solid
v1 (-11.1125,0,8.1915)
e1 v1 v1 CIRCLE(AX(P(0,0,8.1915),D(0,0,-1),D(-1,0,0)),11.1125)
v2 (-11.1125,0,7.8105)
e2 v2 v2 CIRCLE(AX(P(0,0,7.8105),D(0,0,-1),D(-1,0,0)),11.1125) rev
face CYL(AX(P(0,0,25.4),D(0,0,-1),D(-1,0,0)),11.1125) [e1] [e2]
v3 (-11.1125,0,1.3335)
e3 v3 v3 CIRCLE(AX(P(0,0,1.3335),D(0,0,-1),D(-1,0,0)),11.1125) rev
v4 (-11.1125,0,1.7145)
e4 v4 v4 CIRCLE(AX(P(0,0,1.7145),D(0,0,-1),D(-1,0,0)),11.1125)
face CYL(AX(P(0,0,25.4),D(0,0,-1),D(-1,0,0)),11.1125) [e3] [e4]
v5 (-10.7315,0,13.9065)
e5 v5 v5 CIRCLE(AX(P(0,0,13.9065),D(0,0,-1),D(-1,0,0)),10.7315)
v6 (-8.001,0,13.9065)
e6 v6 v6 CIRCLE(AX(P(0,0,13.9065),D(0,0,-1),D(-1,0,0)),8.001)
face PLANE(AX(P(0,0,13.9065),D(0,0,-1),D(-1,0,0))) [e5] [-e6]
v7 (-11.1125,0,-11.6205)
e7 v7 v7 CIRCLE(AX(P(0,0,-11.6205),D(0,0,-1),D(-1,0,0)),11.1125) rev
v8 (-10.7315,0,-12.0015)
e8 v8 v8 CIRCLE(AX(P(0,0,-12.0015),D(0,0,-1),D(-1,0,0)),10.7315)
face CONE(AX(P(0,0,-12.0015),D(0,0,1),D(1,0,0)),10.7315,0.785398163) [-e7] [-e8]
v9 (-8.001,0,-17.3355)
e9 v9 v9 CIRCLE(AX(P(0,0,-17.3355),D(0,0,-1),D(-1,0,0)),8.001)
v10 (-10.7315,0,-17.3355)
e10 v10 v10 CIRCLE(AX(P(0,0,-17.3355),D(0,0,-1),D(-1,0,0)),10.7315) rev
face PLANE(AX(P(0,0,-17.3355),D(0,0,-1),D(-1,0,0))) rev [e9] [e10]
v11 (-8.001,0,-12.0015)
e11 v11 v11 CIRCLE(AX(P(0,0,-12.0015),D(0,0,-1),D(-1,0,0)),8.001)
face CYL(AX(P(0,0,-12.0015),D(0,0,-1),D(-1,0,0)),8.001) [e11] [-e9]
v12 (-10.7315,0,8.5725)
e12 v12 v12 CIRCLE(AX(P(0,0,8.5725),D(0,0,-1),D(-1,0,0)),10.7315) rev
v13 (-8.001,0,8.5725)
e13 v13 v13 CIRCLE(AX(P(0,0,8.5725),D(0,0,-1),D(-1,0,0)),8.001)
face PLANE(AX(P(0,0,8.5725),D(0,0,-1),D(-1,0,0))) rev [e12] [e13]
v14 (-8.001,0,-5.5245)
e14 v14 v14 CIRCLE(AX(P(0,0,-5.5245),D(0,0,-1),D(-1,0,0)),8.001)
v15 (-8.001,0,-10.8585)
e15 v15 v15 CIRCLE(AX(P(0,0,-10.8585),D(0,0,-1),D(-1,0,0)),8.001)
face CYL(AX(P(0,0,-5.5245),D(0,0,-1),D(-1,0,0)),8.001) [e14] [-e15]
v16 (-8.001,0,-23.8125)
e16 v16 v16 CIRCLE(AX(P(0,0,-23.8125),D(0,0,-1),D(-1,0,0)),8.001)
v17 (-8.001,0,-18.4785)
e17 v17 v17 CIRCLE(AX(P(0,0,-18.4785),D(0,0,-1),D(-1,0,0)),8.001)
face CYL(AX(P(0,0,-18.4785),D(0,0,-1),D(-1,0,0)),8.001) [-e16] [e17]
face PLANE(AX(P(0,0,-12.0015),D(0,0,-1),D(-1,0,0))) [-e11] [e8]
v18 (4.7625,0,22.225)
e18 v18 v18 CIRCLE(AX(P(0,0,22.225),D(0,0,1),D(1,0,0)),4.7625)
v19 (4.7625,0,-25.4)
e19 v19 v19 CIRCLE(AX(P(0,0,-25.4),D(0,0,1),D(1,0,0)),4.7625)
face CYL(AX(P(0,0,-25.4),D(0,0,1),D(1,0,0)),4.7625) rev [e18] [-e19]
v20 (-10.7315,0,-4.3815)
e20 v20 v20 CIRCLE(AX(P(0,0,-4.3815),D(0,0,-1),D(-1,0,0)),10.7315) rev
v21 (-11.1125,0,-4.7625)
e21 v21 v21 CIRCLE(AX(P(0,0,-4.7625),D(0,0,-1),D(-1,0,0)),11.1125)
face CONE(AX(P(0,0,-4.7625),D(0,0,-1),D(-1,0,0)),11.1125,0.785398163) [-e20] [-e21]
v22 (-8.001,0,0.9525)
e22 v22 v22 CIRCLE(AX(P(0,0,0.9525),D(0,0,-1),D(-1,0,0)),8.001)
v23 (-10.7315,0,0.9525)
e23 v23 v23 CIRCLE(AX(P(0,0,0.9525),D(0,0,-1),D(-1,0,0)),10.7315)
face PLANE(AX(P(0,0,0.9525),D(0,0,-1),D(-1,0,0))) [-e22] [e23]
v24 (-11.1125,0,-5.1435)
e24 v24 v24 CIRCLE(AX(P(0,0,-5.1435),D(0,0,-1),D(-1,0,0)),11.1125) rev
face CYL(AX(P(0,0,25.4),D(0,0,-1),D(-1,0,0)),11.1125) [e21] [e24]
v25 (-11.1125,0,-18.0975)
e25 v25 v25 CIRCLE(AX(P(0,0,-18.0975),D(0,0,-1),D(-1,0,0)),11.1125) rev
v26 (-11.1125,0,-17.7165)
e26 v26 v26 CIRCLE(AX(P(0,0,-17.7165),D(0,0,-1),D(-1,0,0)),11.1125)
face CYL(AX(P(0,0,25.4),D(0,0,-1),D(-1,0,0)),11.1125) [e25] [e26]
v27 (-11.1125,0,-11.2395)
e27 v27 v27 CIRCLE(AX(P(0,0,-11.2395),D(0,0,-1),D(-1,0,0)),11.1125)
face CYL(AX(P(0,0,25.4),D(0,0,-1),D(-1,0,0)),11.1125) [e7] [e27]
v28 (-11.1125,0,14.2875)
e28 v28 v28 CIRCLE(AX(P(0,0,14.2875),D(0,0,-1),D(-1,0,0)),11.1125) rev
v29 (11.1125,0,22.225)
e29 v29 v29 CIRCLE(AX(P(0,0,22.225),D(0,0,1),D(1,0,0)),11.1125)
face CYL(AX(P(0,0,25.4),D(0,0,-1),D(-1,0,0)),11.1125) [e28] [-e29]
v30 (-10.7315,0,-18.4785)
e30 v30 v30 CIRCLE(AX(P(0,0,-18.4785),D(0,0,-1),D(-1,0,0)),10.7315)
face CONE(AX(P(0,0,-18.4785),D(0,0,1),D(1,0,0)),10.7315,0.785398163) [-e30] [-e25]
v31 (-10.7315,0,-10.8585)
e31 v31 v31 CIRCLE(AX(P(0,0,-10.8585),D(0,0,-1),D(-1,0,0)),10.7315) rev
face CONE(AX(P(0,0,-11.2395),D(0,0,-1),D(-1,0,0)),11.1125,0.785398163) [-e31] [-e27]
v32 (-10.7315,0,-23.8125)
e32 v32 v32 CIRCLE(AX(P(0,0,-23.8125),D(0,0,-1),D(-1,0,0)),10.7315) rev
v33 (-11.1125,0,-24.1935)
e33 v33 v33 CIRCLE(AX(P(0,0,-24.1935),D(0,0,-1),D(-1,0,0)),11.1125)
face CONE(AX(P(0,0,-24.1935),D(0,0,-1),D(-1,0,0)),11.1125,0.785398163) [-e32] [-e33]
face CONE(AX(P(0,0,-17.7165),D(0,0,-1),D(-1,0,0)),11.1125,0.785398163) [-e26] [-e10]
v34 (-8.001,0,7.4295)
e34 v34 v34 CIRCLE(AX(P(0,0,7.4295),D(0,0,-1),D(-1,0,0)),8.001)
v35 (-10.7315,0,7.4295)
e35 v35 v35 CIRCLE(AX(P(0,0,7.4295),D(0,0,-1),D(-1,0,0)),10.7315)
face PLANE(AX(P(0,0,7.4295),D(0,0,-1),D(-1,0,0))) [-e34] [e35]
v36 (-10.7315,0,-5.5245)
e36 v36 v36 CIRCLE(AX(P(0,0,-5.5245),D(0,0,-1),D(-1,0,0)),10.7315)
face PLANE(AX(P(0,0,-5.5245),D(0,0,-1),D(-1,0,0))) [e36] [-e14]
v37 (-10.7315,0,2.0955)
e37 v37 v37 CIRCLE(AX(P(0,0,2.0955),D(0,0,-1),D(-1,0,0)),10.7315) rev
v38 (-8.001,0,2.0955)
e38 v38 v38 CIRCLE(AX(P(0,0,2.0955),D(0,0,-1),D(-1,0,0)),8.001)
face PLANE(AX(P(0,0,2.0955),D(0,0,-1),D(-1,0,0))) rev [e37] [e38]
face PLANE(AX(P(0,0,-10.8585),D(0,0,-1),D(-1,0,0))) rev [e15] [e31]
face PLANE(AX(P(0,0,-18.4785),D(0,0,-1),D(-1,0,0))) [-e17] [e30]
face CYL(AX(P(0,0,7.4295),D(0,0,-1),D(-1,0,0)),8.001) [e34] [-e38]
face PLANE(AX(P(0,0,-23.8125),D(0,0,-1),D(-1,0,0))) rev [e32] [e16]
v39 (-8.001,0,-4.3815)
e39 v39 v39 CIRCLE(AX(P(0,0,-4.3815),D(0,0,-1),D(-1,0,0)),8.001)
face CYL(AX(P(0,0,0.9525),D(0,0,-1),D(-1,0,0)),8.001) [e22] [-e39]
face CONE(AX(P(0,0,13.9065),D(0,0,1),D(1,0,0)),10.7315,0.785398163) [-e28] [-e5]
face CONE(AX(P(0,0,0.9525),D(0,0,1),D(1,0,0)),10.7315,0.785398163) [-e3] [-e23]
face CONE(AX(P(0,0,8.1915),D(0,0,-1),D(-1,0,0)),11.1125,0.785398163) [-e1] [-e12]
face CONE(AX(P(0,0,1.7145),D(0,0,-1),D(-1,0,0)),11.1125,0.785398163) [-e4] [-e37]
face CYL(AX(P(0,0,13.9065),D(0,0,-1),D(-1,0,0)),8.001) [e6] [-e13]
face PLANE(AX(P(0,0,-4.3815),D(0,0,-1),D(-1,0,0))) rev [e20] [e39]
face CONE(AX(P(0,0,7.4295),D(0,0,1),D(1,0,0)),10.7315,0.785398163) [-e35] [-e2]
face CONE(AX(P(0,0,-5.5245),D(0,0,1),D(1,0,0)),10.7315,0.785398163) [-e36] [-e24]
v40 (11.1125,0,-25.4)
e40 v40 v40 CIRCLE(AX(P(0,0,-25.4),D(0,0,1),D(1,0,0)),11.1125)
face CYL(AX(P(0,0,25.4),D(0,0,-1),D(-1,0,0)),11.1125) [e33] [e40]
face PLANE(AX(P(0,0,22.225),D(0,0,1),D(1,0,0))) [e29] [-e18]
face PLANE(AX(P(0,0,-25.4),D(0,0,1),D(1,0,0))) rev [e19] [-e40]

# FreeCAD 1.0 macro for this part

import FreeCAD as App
import Part
import Sketcher

V = App.Vector
Q = App.Units.Quantity


def edges_at(feature, points):
    """Names of the edges that pass closest to the given points."""
    edges = feature.Shape.Edges
    near = lambda p: min(range(len(edges)), key=lambda i: edges[i].distToShape(Part.Vertex(*p))[0])
    return sorted({f"Edge{near(p) + 1}" for p in points})

doc = App.newDocument("Part")
body = doc.addObject("PartDesign::Body", "Body")

sketch1 = body.newObject("Sketcher::SketchObject", "Sketch")
sketch1.AttachmentSupport = (doc.getObject("XY_Plane"), [""])
sketch1.MapMode = "FlatFace"
sketch1.addGeometry(Part.Circle(V(0, 0, 0), V(0, 0, 1), 11.1125), False)
sketch1.addGeometry(Part.Circle(V(0, 0, 0), V(0, 0, 1), 3.2004), False)
sketch1.addConstraint(Sketcher.Constraint("Coincident", 0, 3, -1, 1))
sketch1.addConstraint(Sketcher.Constraint("Coincident", 1, 3, -1, 1))
sketch1.addConstraint(Sketcher.Constraint("Diameter", 0, Q("0.875 in")))
sketch1.addConstraint(Sketcher.Constraint("Diameter", 1, Q("0.252 in")))
pad1 = body.newObject("PartDesign::Pad", "Pad")
pad1.Profile = sketch1
pad1.Length = Q("2 in")
pad1.Midplane = True

sketch2 = body.newObject("Sketcher::SketchObject", "Sketch001")
sketch2.AttachmentSupport = (doc.getObject("XY_Plane"), [""])
sketch2.MapMode = "FlatFace"
sketch2.AttachmentOffset = App.Placement(V(0, 0, 1 * 25.4), App.Rotation())
sketch2.addGeometry(Part.Circle(V(0, 0, 0), V(0, 0, 1), 11.1125), False)
sketch2.addGeometry(Part.Circle(V(0, 0, 0), V(0, 0, 1), 3.2004), False)
sketch2.addConstraint(Sketcher.Constraint("Coincident", 0, 3, -1, 1))
sketch2.addConstraint(Sketcher.Constraint("Coincident", 1, 3, -1, 1))
sketch2.addConstraint(Sketcher.Constraint("Diameter", 0, Q("0.875 in")))
sketch2.addConstraint(Sketcher.Constraint("Diameter", 1, Q("0.252 in")))
pocket1 = body.newObject("PartDesign::Pocket", "Pocket")
pocket1.Profile = sketch2
pocket1.Length = Q("0.125 in")

sketch3 = body.newObject("Sketcher::SketchObject", "Sketch002")
sketch3.AttachmentSupport = (doc.getObject("XY_Plane"), [""])
sketch3.MapMode = "FlatFace"
sketch3.AttachmentOffset = App.Placement(V(0, 0, 0.875 * 25.4), App.Rotation())
sketch3.addGeometry(Part.Circle(V(0, 0, 0), V(0, 0, 1), 4.7625), False)
sketch3.addConstraint(Sketcher.Constraint("Coincident", 0, 3, -1, 1))
sketch3.addConstraint(Sketcher.Constraint("Diameter", 0, Q("0.375 in")))
pocket2 = body.newObject("PartDesign::Pocket", "Pocket001")
pocket2.Profile = sketch3
pocket2.Type = "ThroughAll"

sketch4 = body.newObject("Sketcher::SketchObject", "Sketch003")
sketch4.AttachmentSupport = (doc.getObject("XY_Plane"), [""])
sketch4.MapMode = "FlatFace"
sketch4.AttachmentOffset = App.Placement(V(0, 0, -0.9375 * 25.4), App.Rotation())
sketch4.addGeometry(Part.Circle(V(0, 0, 0), V(0, 0, 1), 11.1125), False)
sketch4.addGeometry(Part.Circle(V(0, 0, 0), V(0, 0, 1), 8.001), False)
sketch4.addConstraint(Sketcher.Constraint("Coincident", 0, 3, -1, 1))
sketch4.addConstraint(Sketcher.Constraint("Coincident", 1, 3, -1, 1))
sketch4.addConstraint(Sketcher.Constraint("Diameter", 1, Q("0.63 in")))
sketch4.addConstraint(Sketcher.Constraint("Diameter", 0, Q("0.875 in")))
pocket3 = body.newObject("PartDesign::Pocket", "Pocket002")
pocket3.Profile = sketch4
pocket3.Length = Q("0.21 in")
pocket3.Reversed = True
doc.recompute()

chamfer = body.newObject("PartDesign::Chamfer", "Chamfer")
chamfer.Base = (pocket3, edges_at(pocket3, [(-11.113, 0, -18.479), (-11.113, 0, -23.812)]))
chamfer.Size = Q("0.015 in")
doc.recompute()

linearpattern = body.newObject("PartDesign::LinearPattern", "LinearPattern")
linearpattern.Originals = [pocket3]
linearpattern.Direction = (doc.getObject("Z_Axis"), [""])
linearpattern.Mode = "offset"
linearpattern.Offset = Q("0.255 in")
linearpattern.Occurrences = 6
body.Tip = linearpattern
doc.recompute()

chamfer2 = body.newObject("PartDesign::Chamfer", "Chamfer001")
chamfer2.Base = (linearpattern, edges_at(linearpattern, [
    (-11.113, 0, -12.002),
    (-11.113, 0, -17.335),
    (-11.113, 0, -5.524),
    (-11.113, 0, -10.858),
    (-11.113, 0, 0.953),
    (-11.113, 0, -4.381),
    (-11.113, 0, 7.429),
    (-11.113, 0, 2.095),
    (-11.113, 0, 13.906),
    (-11.113, 0, 8.572),
]))
chamfer2.Size = Q("0.015 in")

doc.recompute()
